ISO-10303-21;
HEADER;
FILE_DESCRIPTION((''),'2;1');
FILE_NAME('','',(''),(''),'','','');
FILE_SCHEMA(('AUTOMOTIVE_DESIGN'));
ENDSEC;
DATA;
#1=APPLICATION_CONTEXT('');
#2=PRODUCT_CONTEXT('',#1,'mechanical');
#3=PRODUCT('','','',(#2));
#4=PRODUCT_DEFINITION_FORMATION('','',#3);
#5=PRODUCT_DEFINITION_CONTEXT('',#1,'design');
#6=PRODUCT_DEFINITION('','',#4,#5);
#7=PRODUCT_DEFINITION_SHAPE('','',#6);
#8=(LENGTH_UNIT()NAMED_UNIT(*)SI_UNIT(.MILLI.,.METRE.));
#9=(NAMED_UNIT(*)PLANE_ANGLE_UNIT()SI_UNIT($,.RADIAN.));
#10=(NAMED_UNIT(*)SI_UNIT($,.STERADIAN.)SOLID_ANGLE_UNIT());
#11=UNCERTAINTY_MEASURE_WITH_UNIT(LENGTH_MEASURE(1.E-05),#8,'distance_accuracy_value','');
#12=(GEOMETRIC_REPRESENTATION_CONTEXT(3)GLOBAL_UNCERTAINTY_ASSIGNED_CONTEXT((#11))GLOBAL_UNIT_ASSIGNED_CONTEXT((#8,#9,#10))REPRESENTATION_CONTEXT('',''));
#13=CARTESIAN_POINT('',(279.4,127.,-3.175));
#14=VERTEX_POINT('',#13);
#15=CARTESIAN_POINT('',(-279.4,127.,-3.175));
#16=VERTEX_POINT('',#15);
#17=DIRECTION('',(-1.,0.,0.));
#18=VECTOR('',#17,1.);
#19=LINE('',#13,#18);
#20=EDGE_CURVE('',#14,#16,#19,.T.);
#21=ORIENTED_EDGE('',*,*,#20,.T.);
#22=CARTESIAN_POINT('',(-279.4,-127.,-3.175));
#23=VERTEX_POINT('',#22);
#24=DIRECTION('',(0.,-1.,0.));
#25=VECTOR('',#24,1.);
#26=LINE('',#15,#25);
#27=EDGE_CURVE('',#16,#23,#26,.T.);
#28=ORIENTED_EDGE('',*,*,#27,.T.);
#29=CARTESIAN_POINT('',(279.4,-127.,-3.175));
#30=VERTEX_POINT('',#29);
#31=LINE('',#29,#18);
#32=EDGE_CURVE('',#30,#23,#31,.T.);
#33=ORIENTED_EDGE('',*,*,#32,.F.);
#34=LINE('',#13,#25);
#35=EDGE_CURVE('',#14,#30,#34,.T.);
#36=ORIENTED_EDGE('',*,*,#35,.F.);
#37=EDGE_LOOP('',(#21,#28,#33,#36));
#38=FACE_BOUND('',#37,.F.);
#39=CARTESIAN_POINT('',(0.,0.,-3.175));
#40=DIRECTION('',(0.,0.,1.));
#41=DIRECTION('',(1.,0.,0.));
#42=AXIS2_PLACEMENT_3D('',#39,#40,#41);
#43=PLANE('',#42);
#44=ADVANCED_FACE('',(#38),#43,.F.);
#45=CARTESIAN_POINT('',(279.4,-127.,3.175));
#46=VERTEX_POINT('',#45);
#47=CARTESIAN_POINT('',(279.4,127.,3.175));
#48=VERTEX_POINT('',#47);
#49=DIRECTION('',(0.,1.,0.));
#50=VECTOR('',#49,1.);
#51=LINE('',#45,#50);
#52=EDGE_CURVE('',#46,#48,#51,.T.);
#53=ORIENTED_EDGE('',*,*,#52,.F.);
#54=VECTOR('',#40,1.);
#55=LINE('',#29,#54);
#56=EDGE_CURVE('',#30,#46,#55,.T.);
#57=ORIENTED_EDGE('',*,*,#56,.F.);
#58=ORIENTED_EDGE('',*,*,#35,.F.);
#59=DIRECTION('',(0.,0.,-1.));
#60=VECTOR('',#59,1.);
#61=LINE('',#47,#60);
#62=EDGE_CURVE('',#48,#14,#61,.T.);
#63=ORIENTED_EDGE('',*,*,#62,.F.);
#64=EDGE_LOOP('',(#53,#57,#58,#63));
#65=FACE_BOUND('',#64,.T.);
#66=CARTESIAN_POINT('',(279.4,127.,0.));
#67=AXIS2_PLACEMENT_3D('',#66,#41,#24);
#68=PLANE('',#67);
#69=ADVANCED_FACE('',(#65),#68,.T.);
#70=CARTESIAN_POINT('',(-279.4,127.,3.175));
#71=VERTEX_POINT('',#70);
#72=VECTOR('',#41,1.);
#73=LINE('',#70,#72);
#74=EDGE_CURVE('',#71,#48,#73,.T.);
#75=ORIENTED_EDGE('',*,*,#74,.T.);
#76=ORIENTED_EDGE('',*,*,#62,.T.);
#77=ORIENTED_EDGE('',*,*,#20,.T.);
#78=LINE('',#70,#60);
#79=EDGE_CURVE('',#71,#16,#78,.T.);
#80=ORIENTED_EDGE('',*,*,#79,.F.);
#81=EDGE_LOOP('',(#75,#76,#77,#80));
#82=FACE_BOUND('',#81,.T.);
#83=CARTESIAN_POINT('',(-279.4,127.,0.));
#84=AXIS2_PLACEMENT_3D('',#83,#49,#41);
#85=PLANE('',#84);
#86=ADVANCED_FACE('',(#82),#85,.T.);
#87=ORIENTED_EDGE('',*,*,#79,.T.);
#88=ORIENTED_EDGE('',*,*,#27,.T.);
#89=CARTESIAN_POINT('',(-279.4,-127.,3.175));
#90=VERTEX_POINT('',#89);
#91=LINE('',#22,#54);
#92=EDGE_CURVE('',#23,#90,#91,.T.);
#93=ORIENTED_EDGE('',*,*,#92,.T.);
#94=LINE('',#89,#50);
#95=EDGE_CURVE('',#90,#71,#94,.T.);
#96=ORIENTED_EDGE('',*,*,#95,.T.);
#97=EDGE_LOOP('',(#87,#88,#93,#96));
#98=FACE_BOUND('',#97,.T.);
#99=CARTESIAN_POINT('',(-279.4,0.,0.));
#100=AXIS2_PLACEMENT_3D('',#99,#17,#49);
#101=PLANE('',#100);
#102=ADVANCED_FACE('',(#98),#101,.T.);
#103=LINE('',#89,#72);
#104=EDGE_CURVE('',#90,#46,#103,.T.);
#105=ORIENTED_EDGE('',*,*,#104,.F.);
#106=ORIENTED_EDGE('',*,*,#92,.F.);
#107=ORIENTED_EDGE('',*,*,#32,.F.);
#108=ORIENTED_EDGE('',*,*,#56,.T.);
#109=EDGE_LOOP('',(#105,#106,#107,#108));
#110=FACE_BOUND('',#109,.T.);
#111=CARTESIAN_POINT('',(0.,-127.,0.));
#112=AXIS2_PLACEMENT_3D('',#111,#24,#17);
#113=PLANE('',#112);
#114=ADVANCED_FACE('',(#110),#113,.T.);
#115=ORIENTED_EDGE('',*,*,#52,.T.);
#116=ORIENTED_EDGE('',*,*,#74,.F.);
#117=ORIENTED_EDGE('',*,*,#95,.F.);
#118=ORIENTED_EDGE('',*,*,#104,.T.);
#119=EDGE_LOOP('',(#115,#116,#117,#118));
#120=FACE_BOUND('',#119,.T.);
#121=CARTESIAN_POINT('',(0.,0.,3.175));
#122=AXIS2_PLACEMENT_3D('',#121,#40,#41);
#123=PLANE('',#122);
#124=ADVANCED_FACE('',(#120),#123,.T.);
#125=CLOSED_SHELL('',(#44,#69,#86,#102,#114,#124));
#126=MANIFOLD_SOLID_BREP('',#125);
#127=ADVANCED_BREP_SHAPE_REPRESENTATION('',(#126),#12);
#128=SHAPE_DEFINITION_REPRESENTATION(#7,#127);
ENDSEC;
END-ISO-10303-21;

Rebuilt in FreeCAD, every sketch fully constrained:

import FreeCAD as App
import Part
import Sketcher

V = App.Vector
Q = App.Units.Quantity


def add_polygon(sketch, points):
    """Adds a closed chain of lines whose ends are joined by coincident constraints."""
    first, n = sketch.GeometryCount, len(points)
    for a, b in zip(points, points[1:] + points[:1]):
        sketch.addGeometry(Part.LineSegment(App.Vector(*a, 0), App.Vector(*b, 0)), False)
    for i in range(n):
        sketch.addConstraint(Sketcher.Constraint("Coincident", first + i, 2, first + (i + 1) % n, 1))

doc = App.newDocument("Part")
params = doc.addObject("Spreadsheet::Sheet", "Params")
for row, (alias, value) in enumerate([
    ("sketch1_width", "22 in"),
    ("sketch1_height", "10 in"),
    ("pad1_length", "0.25 in"),
], start=1):
    params.set(f"A{row}", alias)
    params.set(f"B{row}", "=" + value)
    params.setAlias(f"B{row}", alias)

body = doc.addObject("PartDesign::Body", "Body")

# Sketch on XY plane
sketch1 = body.newObject("Sketcher::SketchObject", "Sketch")
sketch1.AttachmentSupport = (doc.getObject("XY_Plane"), [""])
sketch1.MapMode = "FlatFace"
add_polygon(sketch1, [(-279, 127), (-279, -127), (279, -127), (279, 127)])  # lines 0-3
sketch1.addConstraint(Sketcher.Constraint("Vertical", 0))
sketch1.addConstraint(Sketcher.Constraint("Horizontal", 1))
sketch1.addConstraint(Sketcher.Constraint("Vertical", 2))
sketch1.addConstraint(Sketcher.Constraint("Horizontal", 3))
sketch1.addConstraint(Sketcher.Constraint("Symmetric", 0, 2, 2, 2, -1, 1))
sketch1.addConstraint(Sketcher.Constraint("DistanceX", 1, 1, 1, 2, Q("22 in")))
sketch1.addConstraint(Sketcher.Constraint("DistanceY", 0, 2, 0, 1, Q("10 in")))
sketch1.setExpression("Constraints[9]", "Params.sketch1_width")
sketch1.setExpression("Constraints[10]", "Params.sketch1_height")
pad1 = body.newObject("PartDesign::Pad", "Pad")
pad1.Profile = sketch1
pad1.setExpression("Length", "Params.pad1_length")
pad1.Midplane = True

doc.recompute()
